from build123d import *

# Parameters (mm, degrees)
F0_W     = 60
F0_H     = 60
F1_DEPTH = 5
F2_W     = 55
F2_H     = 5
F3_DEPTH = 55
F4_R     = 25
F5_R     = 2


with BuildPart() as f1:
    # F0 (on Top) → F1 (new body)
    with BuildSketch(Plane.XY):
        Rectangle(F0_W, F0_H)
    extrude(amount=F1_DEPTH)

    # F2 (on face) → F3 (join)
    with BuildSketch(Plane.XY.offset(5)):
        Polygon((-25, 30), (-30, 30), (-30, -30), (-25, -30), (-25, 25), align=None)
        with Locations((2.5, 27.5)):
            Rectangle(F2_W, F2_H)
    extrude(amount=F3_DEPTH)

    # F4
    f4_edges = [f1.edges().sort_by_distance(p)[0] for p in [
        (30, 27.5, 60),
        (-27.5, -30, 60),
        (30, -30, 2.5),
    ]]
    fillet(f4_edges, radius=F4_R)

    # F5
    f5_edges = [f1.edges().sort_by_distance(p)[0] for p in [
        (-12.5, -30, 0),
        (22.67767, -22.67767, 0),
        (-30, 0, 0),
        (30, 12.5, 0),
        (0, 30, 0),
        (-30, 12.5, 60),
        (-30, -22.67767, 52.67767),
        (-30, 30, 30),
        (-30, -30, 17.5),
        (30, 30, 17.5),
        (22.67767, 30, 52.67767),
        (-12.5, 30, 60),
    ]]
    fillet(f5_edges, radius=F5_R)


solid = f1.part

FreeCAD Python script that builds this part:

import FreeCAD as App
import Part
import Sketcher

V = App.Vector
Q = App.Units.Quantity


def edges_at(feature, points):
    """Names of the edges that pass closest to the given points."""
    edges = feature.Shape.Edges
    near = lambda p: min(range(len(edges)), key=lambda i: edges[i].distToShape(Part.Vertex(*p))[0])
    return sorted({f"Edge{near(p) + 1}" for p in points})

doc = App.newDocument("Part")
body = doc.addObject("PartDesign::Body", "Body")

# Sketch on XY plane
sketch1 = body.newObject("Sketcher::SketchObject", "Sketch")
sketch1.AttachmentSupport = (doc.getObject("XY_Plane"), [""])
sketch1.MapMode = "FlatFace"
sketch1.addGeometry([
    Part.LineSegment(V(-30, 30, 0), V(-30, -30, 0)),
    Part.LineSegment(V(-30, -30, 0), V(30, -30, 0)),
    Part.LineSegment(V(30, -30, 0), V(30, 30, 0)),
    Part.LineSegment(V(30, 30, 0), V(-30, 30, 0)),
], False)
sketch1.addConstraint([
    Sketcher.Constraint("Coincident", 0, 2, 1, 1),
    Sketcher.Constraint("Coincident", 1, 2, 2, 1),
    Sketcher.Constraint("Coincident", 2, 2, 3, 1),
    Sketcher.Constraint("Coincident", 3, 2, 0, 1),
    Sketcher.Constraint("Vertical", 0),
    Sketcher.Constraint("Horizontal", 1),
    Sketcher.Constraint("Vertical", 2),
    Sketcher.Constraint("Horizontal", 3),
    Sketcher.Constraint("Symmetric", 0, 2, 2, 2, -1, 1),
    Sketcher.Constraint("Equal", 3, 0),
    Sketcher.Constraint("DistanceX", 1, 1, 1, 2, Q("60 mm")),
])
pad1 = body.newObject("PartDesign::Pad", "Pad")
pad1.Profile = sketch1
pad1.Length = 5

# Sketch on XY plane
sketch2 = body.newObject("Sketcher::SketchObject", "Sketch001")
sketch2.AttachmentSupport = (doc.getObject("XY_Plane"), [""])
sketch2.MapMode = "FlatFace"
sketch2.AttachmentOffset = App.Placement(V(0, 0, 5), App.Rotation())
sketch2.addGeometry([
    Part.LineSegment(V(-30, 30, 0), V(-30, -30, 0)),  # 0
    Part.LineSegment(V(-30, -30, 0), V(-25, -30, 0)),  # 1
    Part.LineSegment(V(-25, -30, 0), V(-25, 25, 0)),  # 2
    Part.LineSegment(V(-25, 25, 0), V(30, 25, 0)),  # 3
    Part.LineSegment(V(30, 25, 0), V(30, 30, 0)),  # 4
    Part.LineSegment(V(30, 30, 0), V(-30, 30, 0)),  # 5
], False)
sketch2.addConstraint([
    Sketcher.Constraint("Coincident", 0, 2, 1, 1),
    Sketcher.Constraint("Coincident", 1, 2, 2, 1),
    Sketcher.Constraint("Coincident", 2, 2, 3, 1),
    Sketcher.Constraint("Coincident", 3, 2, 4, 1),
    Sketcher.Constraint("Coincident", 4, 2, 5, 1),
    Sketcher.Constraint("Coincident", 5, 2, 0, 1),
    Sketcher.Constraint("Vertical", 0),
    Sketcher.Constraint("Horizontal", 1),
    Sketcher.Constraint("Vertical", 2),
    Sketcher.Constraint("Horizontal", 3),
    Sketcher.Constraint("Vertical", 4),
    Sketcher.Constraint("Horizontal", 5),
    Sketcher.Constraint("Symmetric", 0, 2, 4, 2, -1, 1),
    Sketcher.Constraint("Equal", 5, 0),
    Sketcher.Constraint("Equal", 3, 2),
    Sketcher.Constraint("DistanceX", 1, 1, 1, 2, Q("5 mm")),
    Sketcher.Constraint("DistanceX", 3, 1, 3, 2, Q("55 mm")),
])
pad2 = body.newObject("PartDesign::Pad", "Pad001")
pad2.Profile = sketch2
pad2.Length = 55
doc.recompute()

fillet = body.newObject("PartDesign::Fillet", "Fillet")
fillet.Base = (pad2, edges_at(pad2, [(30, 27.5, 60), (-27.5, -30, 60), (30, -30, 2.5)]))
fillet.Radius = 25
doc.recompute()

fillet2 = body.newObject("PartDesign::Fillet", "Fillet001")
fillet2.Base = (fillet, edges_at(fillet, [
    (-12.5, -30, 0),
    (22.678, -22.678, 0),
    (-30, 0, 0),
    (30, 12.5, 0),
    (0, 30, 0),
    (-30, 12.5, 60),
    (-30, -22.678, 52.678),
    (-30, 30, 30),
    (-30, -30, 17.5),
    (30, 30, 17.5),
    (22.678, 30, 52.678),
    (-12.5, 30, 60),
]))
fillet2.Radius = 2

doc.recompute()
